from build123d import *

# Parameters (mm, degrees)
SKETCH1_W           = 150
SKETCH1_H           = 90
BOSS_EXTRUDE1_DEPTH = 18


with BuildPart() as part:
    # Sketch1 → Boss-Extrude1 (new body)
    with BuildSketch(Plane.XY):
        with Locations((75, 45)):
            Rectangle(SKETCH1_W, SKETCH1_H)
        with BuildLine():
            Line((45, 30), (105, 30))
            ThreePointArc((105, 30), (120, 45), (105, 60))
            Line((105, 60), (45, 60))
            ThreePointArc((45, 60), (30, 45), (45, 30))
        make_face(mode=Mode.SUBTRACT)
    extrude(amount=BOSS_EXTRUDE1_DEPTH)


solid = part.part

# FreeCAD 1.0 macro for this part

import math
import FreeCAD as App
import Part
import Sketcher

V = App.Vector
Q = App.Units.Quantity

doc = App.newDocument("Part")
body = doc.addObject("PartDesign::Body", "Body")

# Sketch on XY plane
sketch1 = body.newObject("Sketcher::SketchObject", "Sketch")
sketch1.AttachmentSupport = (doc.getObject("XY_Plane"), [""])
sketch1.MapMode = "FlatFace"
sketch1.addGeometry(Part.LineSegment(V(0, 90, 0), V(0, 0, 0)), False)
sketch1.addGeometry(Part.LineSegment(V(0, 0, 0), V(150, 0, 0)), False)
sketch1.addGeometry(Part.LineSegment(V(150, 0, 0), V(150, 90, 0)), False)
sketch1.addGeometry(Part.LineSegment(V(150, 90, 0), V(0, 90, 0)), False)
sketch1.addGeometry(Part.LineSegment(V(105, 30, 0), V(45, 30, 0)), False)
sketch1.addGeometry(Part.ArcOfCircle(Part.Circle(V(45, 45, 0), V(0, 0, 1), 15), math.radians(90), math.radians(270)), False)
sketch1.addGeometry(Part.LineSegment(V(45, 60, 0), V(105, 60, 0)), False)
sketch1.addGeometry(Part.ArcOfCircle(Part.Circle(V(105, 45, 0), V(0, 0, 1), 15), math.radians(-90), math.radians(90)), False)
sketch1.addConstraint(Sketcher.Constraint("Coincident", 0, 2, 1, 1))
sketch1.addConstraint(Sketcher.Constraint("Coincident", 1, 2, 2, 1))
sketch1.addConstraint(Sketcher.Constraint("Coincident", 2, 2, 3, 1))
sketch1.addConstraint(Sketcher.Constraint("Coincident", 3, 2, 0, 1))
sketch1.addConstraint(Sketcher.Constraint("Tangent", 4, 2, 5, 2))
sketch1.addConstraint(Sketcher.Constraint("Tangent", 5, 1, 6, 1))
sketch1.addConstraint(Sketcher.Constraint("Tangent", 6, 2, 7, 2))
sketch1.addConstraint(Sketcher.Constraint("Tangent", 7, 1, 4, 1))
sketch1.addConstraint(Sketcher.Constraint("Vertical", 0))
sketch1.addConstraint(Sketcher.Constraint("Horizontal", 1))
sketch1.addConstraint(Sketcher.Constraint("Vertical", 2))
sketch1.addConstraint(Sketcher.Constraint("Horizontal", 3))
sketch1.addConstraint(Sketcher.Constraint("Horizontal", 4))
sketch1.addConstraint(Sketcher.Constraint("Horizontal", 6))
sketch1.addConstraint(Sketcher.Constraint("Coincident", 0, 2, -1, 1))
sketch1.addConstraint(Sketcher.Constraint("Radius", 5, Q("15 mm")))
sketch1.addConstraint(Sketcher.Constraint("DistanceX", 1, 1, 1, 2, Q("150 mm")))
sketch1.addConstraint(Sketcher.Constraint("DistanceX", 4, 2, 4, 1, Q("60 mm")))
sketch1.addConstraint(Sketcher.Constraint("DistanceY", 0, 2, 0, 1, Q("90 mm")))
sketch1.addConstraint(Sketcher.Constraint("DistanceX", -1, 1, 5, 3, Q("45 mm")))
sketch1.addConstraint(Sketcher.Constraint("DistanceY", -1, 1, 5, 3, Q("45 mm")))
pad1 = body.newObject("PartDesign::Pad", "Pad")
pad1.Profile = sketch1
pad1.Length = 18

doc.recompute()
